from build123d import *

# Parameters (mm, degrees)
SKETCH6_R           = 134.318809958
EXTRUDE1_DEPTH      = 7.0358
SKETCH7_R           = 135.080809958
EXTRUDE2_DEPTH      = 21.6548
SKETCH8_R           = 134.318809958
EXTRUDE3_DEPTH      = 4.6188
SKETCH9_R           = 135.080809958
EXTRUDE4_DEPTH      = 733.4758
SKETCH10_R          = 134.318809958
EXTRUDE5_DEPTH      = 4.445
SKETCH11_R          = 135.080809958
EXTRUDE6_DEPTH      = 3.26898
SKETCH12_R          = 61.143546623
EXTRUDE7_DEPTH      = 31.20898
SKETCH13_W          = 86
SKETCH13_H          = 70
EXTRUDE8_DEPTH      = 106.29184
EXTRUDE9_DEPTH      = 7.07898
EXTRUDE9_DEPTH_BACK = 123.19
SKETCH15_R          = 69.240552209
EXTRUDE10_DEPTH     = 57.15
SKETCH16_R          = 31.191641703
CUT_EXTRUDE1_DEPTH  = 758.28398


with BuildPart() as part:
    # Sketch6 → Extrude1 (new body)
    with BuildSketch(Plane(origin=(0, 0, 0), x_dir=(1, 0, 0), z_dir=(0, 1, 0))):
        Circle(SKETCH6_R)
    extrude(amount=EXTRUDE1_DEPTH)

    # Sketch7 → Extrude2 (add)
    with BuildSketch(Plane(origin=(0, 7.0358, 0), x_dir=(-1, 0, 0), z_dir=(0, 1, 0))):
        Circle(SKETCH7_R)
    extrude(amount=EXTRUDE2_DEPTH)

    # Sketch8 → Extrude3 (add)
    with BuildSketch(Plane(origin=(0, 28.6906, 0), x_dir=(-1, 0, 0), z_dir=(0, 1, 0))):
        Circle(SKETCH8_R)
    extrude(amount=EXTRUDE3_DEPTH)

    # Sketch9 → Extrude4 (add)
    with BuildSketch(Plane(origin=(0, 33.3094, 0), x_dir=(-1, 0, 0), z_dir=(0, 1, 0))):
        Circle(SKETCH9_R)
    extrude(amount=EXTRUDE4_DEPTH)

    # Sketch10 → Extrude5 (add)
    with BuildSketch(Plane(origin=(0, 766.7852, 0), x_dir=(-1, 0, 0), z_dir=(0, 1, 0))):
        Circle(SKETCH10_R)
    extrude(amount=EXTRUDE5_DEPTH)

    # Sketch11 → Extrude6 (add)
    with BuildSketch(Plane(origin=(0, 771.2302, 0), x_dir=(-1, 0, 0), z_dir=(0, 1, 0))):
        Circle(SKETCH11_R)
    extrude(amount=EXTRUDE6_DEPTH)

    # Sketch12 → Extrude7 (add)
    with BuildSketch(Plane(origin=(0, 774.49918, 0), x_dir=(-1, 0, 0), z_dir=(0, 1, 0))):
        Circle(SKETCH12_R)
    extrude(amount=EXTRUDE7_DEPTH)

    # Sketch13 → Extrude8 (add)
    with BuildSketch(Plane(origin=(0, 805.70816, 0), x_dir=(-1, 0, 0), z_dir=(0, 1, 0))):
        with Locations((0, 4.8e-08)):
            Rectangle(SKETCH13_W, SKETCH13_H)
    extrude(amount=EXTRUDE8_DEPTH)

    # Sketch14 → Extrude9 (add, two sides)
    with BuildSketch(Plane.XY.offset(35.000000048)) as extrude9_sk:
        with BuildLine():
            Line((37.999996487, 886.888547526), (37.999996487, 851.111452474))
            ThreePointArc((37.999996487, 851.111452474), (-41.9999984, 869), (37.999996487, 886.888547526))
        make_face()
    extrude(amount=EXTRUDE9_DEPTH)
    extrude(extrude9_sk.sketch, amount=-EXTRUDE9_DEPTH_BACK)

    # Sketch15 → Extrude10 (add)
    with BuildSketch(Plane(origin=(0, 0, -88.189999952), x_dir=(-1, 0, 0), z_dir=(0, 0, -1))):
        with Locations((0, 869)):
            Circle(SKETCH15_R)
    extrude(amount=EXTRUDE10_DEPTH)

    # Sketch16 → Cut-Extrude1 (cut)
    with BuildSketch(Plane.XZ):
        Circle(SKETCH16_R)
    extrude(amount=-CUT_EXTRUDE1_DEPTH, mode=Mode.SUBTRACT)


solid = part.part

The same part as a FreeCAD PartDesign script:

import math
import FreeCAD as App
import Part
import Sketcher

V = App.Vector
Q = App.Units.Quantity


def add_polygon(sketch, points):
    """Adds a closed chain of lines whose ends are joined by coincident constraints."""
    first, n = sketch.GeometryCount, len(points)
    for a, b in zip(points, points[1:] + points[:1]):
        sketch.addGeometry(Part.LineSegment(App.Vector(*a, 0), App.Vector(*b, 0)), False)
    for i in range(n):
        sketch.addConstraint(Sketcher.Constraint("Coincident", first + i, 2, first + (i + 1) % n, 1))

doc = App.newDocument("Part")
params = doc.addObject("Spreadsheet::Sheet", "Params")
for row, (alias, value) in enumerate([
    ("pad1_length", "0.277 in"),
    ("pad2_length", "21.6548 mm"),
    ("pad3_length", "4.6188 mm"),
    ("pad4_length", "28.877 in"),
    ("pad5_length", "0.175 in"),
    ("pad6_length", "0.1287 in"),
    ("pad7_length", "1.2287 in"),
    ("pad8_length", "106.29184 mm"),
    ("pad9_length", "0.2787 in"),
    ("pad9_length2", "4.85 in"),
    ("pad10_length", "2.25 in"),
    ("pocket1_length", "29.8537 in"),
], start=1):
    params.set(f"A{row}", alias)
    params.set(f"B{row}", "=" + value)
    params.setAlias(f"B{row}", alias)

body = doc.addObject("PartDesign::Body", "Body")

# Sketch on XZ plane
sketch1 = body.newObject("Sketcher::SketchObject", "Sketch")
sketch1.AttachmentSupport = (doc.getObject("XZ_Plane"), [""])
sketch1.MapMode = "FlatFace"
sketch1.addGeometry(Part.Circle(V(0, 0, 0), V(0, 0, 1), 134), False)
sketch1.addConstraint([
    Sketcher.Constraint("Coincident", 0, 3, -1, 1),
    Sketcher.Constraint("Diameter", 0, Q("268.63762 mm")),
])
pad1 = body.newObject("PartDesign::Pad", "Pad")
pad1.Profile = sketch1
pad1.setExpression("Length", "Params.pad1_length")
pad1.Reversed = True

# Sketch on XZ plane
sketch2 = body.newObject("Sketcher::SketchObject", "Sketch001")
sketch2.AttachmentSupport = (doc.getObject("XZ_Plane"), [""])
sketch2.MapMode = "FlatFace"
sketch2.AttachmentOffset = App.Placement(V(0, 0, -0.277 * 25.4), App.Rotation())
sketch2.addGeometry(Part.Circle(V(0, 0, 0), V(0, 0, 1), 135), False)
sketch2.addConstraint([
    Sketcher.Constraint("Coincident", 0, 3, -1, 1),
    Sketcher.Constraint("Diameter", 0, Q("270.16162 mm")),
])
pad2 = body.newObject("PartDesign::Pad", "Pad001")
pad2.Profile = sketch2
pad2.setExpression("Length", "Params.pad2_length")
pad2.Reversed = True

# Sketch on XZ plane
sketch3 = body.newObject("Sketcher::SketchObject", "Sketch002")
sketch3.AttachmentSupport = (doc.getObject("XZ_Plane"), [""])
sketch3.MapMode = "FlatFace"
sketch3.AttachmentOffset = App.Placement(V(0, 0, -28.6906), App.Rotation())
sketch3.addGeometry(Part.Circle(V(0, 0, 0), V(0, 0, 1), 134), False)
sketch3.addConstraint([
    Sketcher.Constraint("Coincident", 0, 3, -1, 1),
    Sketcher.Constraint("Diameter", 0, Q("268.63762 mm")),
])
pad3 = body.newObject("PartDesign::Pad", "Pad002")
pad3.Profile = sketch3
pad3.setExpression("Length", "Params.pad3_length")
pad3.Reversed = True

# Sketch on XZ plane
sketch4 = body.newObject("Sketcher::SketchObject", "Sketch003")
sketch4.AttachmentSupport = (doc.getObject("XZ_Plane"), [""])
sketch4.MapMode = "FlatFace"
sketch4.AttachmentOffset = App.Placement(V(0, 0, -33.3094), App.Rotation())
sketch4.addGeometry(Part.Circle(V(0, 0, 0), V(0, 0, 1), 135), False)
sketch4.addConstraint([
    Sketcher.Constraint("Coincident", 0, 3, -1, 1),
    Sketcher.Constraint("Diameter", 0, Q("270.16162 mm")),
])
pad4 = body.newObject("PartDesign::Pad", "Pad003")
pad4.Profile = sketch4
pad4.setExpression("Length", "Params.pad4_length")
pad4.Reversed = True

# Sketch on XZ plane
sketch5 = body.newObject("Sketcher::SketchObject", "Sketch004")
sketch5.AttachmentSupport = (doc.getObject("XZ_Plane"), [""])
sketch5.MapMode = "FlatFace"
sketch5.AttachmentOffset = App.Placement(V(0, 0, -766.7852), App.Rotation())
sketch5.addGeometry(Part.Circle(V(0, 0, 0), V(0, 0, 1), 134), False)
sketch5.addConstraint([
    Sketcher.Constraint("Coincident", 0, 3, -1, 1),
    Sketcher.Constraint("Diameter", 0, Q("268.63762 mm")),
])
pad5 = body.newObject("PartDesign::Pad", "Pad004")
pad5.Profile = sketch5
pad5.setExpression("Length", "Params.pad5_length")
pad5.Reversed = True

# Sketch on XZ plane
sketch6 = body.newObject("Sketcher::SketchObject", "Sketch005")
sketch6.AttachmentSupport = (doc.getObject("XZ_Plane"), [""])
sketch6.MapMode = "FlatFace"
sketch6.AttachmentOffset = App.Placement(V(0, 0, -771.2302), App.Rotation())
sketch6.addGeometry(Part.Circle(V(0, 0, 0), V(0, 0, 1), 135), False)
sketch6.addConstraint([
    Sketcher.Constraint("Coincident", 0, 3, -1, 1),
    Sketcher.Constraint("Diameter", 0, Q("270.16162 mm")),
])
pad6 = body.newObject("PartDesign::Pad", "Pad005")
pad6.Profile = sketch6
pad6.setExpression("Length", "Params.pad6_length")
pad6.Reversed = True

# Sketch on XZ plane
sketch7 = body.newObject("Sketcher::SketchObject", "Sketch006")
sketch7.AttachmentSupport = (doc.getObject("XZ_Plane"), [""])
sketch7.MapMode = "FlatFace"
sketch7.AttachmentOffset = App.Placement(V(0, 0, -774.49918), App.Rotation())
sketch7.addGeometry(Part.Circle(V(0, 0, 0), V(0, 0, 1), 61), False)
sketch7.addConstraint([
    Sketcher.Constraint("Coincident", 0, 3, -1, 1),
    Sketcher.Constraint("Diameter", 0, Q("122.287093 mm")),
])
pad7 = body.newObject("PartDesign::Pad", "Pad006")
pad7.Profile = sketch7
pad7.setExpression("Length", "Params.pad7_length")
pad7.Reversed = True

# Sketch on XZ plane
sketch8 = body.newObject("Sketcher::SketchObject", "Sketch007")
sketch8.AttachmentSupport = (doc.getObject("XZ_Plane"), [""])
sketch8.MapMode = "FlatFace"
sketch8.AttachmentOffset = App.Placement(V(0, 0, -805.70816), App.Rotation())
add_polygon(sketch8, [(43, 35), (43, -35), (-43, -35), (-43, 35)])  # lines 0-3
sketch8.addConstraint([
    Sketcher.Constraint("Vertical", 0),
    Sketcher.Constraint("Horizontal", 1),
    Sketcher.Constraint("Vertical", 2),
    Sketcher.Constraint("Horizontal", 3),
    Sketcher.Constraint("Symmetric", 0, 2, 2, 2, -1, 1),
    Sketcher.Constraint("DistanceX", 1, 2, 1, 1, Q("86 mm")),
    Sketcher.Constraint("DistanceY", 0, 2, 0, 1, Q("70 mm")),
])
pad8 = body.newObject("PartDesign::Pad", "Pad007")
pad8.Profile = sketch8
pad8.setExpression("Length", "Params.pad8_length")
pad8.Reversed = True

# Sketch on XY plane
sketch9 = body.newObject("Sketcher::SketchObject", "Sketch008")
sketch9.AttachmentSupport = (doc.getObject("XY_Plane"), [""])
sketch9.MapMode = "FlatFace"
sketch9.AttachmentOffset = App.Placement(V(0, 0, 35), App.Rotation())
sketch9.addGeometry([
    Part.LineSegment(V(38, 851, 0), V(38, 887, 0)),
    Part.ArcOfCircle(Part.Circle(V(0, 869, 0), V(0, 0, 1), 42), math.radians(25), math.radians(335)),
], False)
sketch9.addConstraint([
    Sketcher.Constraint("Coincident", 0, 1, 1, 2),
    Sketcher.Constraint("Coincident", 1, 1, 0, 2),
    Sketcher.Constraint("Vertical", 0),
    Sketcher.Constraint("PointOnObject", 1, 3, -2),
    Sketcher.Constraint("Radius", 1, Q("41.999998 mm")),
    Sketcher.Constraint("DistanceY", -1, 1, 1, 3, Q("869 mm")),
    Sketcher.Constraint("DistanceY", 0, 1, 0, 2, Q("35.777095 mm")),
])
pad9 = body.newObject("PartDesign::Pad", "Pad008")
pad9.Profile = sketch9
pad9.Type = "TwoLengths"
pad9.setExpression("Length", "Params.pad9_length")
pad9.setExpression("Length2", "Params.pad9_length2")

# Sketch on XY plane
sketch10 = body.newObject("Sketcher::SketchObject", "Sketch009")
sketch10.AttachmentSupport = (doc.getObject("XY_Plane"), [""])
sketch10.MapMode = "FlatFace"
sketch10.AttachmentOffset = App.Placement(V(0, 0, -88.19), App.Rotation())
sketch10.addGeometry(Part.Circle(V(0, 869, 0), V(0, 0, 1), 69), False)
sketch10.addConstraint([
    Sketcher.Constraint("PointOnObject", 0, 3, -2),
    Sketcher.Constraint("Diameter", 0, Q("138.481104 mm")),
    Sketcher.Constraint("DistanceY", -1, 1, 0, 3, Q("869 mm")),
])
pad10 = body.newObject("PartDesign::Pad", "Pad009")
pad10.Profile = sketch10
pad10.setExpression("Length", "Params.pad10_length")
pad10.Reversed = True

# Sketch on XZ plane
sketch11 = body.newObject("Sketcher::SketchObject", "Sketch010")
sketch11.AttachmentSupport = (doc.getObject("XZ_Plane"), [""])
sketch11.MapMode = "FlatFace"
sketch11.addGeometry(Part.Circle(V(0, 0, 0), V(0, 0, 1), 31), False)
sketch11.addConstraint([
    Sketcher.Constraint("Coincident", 0, 3, -1, 1),
    Sketcher.Constraint("Diameter", 0, Q("62.383283 mm")),
])
pocket1 = body.newObject("PartDesign::Pocket", "Pocket")
pocket1.Profile = sketch11
pocket1.setExpression("Length", "Params.pocket1_length")

doc.recompute()
